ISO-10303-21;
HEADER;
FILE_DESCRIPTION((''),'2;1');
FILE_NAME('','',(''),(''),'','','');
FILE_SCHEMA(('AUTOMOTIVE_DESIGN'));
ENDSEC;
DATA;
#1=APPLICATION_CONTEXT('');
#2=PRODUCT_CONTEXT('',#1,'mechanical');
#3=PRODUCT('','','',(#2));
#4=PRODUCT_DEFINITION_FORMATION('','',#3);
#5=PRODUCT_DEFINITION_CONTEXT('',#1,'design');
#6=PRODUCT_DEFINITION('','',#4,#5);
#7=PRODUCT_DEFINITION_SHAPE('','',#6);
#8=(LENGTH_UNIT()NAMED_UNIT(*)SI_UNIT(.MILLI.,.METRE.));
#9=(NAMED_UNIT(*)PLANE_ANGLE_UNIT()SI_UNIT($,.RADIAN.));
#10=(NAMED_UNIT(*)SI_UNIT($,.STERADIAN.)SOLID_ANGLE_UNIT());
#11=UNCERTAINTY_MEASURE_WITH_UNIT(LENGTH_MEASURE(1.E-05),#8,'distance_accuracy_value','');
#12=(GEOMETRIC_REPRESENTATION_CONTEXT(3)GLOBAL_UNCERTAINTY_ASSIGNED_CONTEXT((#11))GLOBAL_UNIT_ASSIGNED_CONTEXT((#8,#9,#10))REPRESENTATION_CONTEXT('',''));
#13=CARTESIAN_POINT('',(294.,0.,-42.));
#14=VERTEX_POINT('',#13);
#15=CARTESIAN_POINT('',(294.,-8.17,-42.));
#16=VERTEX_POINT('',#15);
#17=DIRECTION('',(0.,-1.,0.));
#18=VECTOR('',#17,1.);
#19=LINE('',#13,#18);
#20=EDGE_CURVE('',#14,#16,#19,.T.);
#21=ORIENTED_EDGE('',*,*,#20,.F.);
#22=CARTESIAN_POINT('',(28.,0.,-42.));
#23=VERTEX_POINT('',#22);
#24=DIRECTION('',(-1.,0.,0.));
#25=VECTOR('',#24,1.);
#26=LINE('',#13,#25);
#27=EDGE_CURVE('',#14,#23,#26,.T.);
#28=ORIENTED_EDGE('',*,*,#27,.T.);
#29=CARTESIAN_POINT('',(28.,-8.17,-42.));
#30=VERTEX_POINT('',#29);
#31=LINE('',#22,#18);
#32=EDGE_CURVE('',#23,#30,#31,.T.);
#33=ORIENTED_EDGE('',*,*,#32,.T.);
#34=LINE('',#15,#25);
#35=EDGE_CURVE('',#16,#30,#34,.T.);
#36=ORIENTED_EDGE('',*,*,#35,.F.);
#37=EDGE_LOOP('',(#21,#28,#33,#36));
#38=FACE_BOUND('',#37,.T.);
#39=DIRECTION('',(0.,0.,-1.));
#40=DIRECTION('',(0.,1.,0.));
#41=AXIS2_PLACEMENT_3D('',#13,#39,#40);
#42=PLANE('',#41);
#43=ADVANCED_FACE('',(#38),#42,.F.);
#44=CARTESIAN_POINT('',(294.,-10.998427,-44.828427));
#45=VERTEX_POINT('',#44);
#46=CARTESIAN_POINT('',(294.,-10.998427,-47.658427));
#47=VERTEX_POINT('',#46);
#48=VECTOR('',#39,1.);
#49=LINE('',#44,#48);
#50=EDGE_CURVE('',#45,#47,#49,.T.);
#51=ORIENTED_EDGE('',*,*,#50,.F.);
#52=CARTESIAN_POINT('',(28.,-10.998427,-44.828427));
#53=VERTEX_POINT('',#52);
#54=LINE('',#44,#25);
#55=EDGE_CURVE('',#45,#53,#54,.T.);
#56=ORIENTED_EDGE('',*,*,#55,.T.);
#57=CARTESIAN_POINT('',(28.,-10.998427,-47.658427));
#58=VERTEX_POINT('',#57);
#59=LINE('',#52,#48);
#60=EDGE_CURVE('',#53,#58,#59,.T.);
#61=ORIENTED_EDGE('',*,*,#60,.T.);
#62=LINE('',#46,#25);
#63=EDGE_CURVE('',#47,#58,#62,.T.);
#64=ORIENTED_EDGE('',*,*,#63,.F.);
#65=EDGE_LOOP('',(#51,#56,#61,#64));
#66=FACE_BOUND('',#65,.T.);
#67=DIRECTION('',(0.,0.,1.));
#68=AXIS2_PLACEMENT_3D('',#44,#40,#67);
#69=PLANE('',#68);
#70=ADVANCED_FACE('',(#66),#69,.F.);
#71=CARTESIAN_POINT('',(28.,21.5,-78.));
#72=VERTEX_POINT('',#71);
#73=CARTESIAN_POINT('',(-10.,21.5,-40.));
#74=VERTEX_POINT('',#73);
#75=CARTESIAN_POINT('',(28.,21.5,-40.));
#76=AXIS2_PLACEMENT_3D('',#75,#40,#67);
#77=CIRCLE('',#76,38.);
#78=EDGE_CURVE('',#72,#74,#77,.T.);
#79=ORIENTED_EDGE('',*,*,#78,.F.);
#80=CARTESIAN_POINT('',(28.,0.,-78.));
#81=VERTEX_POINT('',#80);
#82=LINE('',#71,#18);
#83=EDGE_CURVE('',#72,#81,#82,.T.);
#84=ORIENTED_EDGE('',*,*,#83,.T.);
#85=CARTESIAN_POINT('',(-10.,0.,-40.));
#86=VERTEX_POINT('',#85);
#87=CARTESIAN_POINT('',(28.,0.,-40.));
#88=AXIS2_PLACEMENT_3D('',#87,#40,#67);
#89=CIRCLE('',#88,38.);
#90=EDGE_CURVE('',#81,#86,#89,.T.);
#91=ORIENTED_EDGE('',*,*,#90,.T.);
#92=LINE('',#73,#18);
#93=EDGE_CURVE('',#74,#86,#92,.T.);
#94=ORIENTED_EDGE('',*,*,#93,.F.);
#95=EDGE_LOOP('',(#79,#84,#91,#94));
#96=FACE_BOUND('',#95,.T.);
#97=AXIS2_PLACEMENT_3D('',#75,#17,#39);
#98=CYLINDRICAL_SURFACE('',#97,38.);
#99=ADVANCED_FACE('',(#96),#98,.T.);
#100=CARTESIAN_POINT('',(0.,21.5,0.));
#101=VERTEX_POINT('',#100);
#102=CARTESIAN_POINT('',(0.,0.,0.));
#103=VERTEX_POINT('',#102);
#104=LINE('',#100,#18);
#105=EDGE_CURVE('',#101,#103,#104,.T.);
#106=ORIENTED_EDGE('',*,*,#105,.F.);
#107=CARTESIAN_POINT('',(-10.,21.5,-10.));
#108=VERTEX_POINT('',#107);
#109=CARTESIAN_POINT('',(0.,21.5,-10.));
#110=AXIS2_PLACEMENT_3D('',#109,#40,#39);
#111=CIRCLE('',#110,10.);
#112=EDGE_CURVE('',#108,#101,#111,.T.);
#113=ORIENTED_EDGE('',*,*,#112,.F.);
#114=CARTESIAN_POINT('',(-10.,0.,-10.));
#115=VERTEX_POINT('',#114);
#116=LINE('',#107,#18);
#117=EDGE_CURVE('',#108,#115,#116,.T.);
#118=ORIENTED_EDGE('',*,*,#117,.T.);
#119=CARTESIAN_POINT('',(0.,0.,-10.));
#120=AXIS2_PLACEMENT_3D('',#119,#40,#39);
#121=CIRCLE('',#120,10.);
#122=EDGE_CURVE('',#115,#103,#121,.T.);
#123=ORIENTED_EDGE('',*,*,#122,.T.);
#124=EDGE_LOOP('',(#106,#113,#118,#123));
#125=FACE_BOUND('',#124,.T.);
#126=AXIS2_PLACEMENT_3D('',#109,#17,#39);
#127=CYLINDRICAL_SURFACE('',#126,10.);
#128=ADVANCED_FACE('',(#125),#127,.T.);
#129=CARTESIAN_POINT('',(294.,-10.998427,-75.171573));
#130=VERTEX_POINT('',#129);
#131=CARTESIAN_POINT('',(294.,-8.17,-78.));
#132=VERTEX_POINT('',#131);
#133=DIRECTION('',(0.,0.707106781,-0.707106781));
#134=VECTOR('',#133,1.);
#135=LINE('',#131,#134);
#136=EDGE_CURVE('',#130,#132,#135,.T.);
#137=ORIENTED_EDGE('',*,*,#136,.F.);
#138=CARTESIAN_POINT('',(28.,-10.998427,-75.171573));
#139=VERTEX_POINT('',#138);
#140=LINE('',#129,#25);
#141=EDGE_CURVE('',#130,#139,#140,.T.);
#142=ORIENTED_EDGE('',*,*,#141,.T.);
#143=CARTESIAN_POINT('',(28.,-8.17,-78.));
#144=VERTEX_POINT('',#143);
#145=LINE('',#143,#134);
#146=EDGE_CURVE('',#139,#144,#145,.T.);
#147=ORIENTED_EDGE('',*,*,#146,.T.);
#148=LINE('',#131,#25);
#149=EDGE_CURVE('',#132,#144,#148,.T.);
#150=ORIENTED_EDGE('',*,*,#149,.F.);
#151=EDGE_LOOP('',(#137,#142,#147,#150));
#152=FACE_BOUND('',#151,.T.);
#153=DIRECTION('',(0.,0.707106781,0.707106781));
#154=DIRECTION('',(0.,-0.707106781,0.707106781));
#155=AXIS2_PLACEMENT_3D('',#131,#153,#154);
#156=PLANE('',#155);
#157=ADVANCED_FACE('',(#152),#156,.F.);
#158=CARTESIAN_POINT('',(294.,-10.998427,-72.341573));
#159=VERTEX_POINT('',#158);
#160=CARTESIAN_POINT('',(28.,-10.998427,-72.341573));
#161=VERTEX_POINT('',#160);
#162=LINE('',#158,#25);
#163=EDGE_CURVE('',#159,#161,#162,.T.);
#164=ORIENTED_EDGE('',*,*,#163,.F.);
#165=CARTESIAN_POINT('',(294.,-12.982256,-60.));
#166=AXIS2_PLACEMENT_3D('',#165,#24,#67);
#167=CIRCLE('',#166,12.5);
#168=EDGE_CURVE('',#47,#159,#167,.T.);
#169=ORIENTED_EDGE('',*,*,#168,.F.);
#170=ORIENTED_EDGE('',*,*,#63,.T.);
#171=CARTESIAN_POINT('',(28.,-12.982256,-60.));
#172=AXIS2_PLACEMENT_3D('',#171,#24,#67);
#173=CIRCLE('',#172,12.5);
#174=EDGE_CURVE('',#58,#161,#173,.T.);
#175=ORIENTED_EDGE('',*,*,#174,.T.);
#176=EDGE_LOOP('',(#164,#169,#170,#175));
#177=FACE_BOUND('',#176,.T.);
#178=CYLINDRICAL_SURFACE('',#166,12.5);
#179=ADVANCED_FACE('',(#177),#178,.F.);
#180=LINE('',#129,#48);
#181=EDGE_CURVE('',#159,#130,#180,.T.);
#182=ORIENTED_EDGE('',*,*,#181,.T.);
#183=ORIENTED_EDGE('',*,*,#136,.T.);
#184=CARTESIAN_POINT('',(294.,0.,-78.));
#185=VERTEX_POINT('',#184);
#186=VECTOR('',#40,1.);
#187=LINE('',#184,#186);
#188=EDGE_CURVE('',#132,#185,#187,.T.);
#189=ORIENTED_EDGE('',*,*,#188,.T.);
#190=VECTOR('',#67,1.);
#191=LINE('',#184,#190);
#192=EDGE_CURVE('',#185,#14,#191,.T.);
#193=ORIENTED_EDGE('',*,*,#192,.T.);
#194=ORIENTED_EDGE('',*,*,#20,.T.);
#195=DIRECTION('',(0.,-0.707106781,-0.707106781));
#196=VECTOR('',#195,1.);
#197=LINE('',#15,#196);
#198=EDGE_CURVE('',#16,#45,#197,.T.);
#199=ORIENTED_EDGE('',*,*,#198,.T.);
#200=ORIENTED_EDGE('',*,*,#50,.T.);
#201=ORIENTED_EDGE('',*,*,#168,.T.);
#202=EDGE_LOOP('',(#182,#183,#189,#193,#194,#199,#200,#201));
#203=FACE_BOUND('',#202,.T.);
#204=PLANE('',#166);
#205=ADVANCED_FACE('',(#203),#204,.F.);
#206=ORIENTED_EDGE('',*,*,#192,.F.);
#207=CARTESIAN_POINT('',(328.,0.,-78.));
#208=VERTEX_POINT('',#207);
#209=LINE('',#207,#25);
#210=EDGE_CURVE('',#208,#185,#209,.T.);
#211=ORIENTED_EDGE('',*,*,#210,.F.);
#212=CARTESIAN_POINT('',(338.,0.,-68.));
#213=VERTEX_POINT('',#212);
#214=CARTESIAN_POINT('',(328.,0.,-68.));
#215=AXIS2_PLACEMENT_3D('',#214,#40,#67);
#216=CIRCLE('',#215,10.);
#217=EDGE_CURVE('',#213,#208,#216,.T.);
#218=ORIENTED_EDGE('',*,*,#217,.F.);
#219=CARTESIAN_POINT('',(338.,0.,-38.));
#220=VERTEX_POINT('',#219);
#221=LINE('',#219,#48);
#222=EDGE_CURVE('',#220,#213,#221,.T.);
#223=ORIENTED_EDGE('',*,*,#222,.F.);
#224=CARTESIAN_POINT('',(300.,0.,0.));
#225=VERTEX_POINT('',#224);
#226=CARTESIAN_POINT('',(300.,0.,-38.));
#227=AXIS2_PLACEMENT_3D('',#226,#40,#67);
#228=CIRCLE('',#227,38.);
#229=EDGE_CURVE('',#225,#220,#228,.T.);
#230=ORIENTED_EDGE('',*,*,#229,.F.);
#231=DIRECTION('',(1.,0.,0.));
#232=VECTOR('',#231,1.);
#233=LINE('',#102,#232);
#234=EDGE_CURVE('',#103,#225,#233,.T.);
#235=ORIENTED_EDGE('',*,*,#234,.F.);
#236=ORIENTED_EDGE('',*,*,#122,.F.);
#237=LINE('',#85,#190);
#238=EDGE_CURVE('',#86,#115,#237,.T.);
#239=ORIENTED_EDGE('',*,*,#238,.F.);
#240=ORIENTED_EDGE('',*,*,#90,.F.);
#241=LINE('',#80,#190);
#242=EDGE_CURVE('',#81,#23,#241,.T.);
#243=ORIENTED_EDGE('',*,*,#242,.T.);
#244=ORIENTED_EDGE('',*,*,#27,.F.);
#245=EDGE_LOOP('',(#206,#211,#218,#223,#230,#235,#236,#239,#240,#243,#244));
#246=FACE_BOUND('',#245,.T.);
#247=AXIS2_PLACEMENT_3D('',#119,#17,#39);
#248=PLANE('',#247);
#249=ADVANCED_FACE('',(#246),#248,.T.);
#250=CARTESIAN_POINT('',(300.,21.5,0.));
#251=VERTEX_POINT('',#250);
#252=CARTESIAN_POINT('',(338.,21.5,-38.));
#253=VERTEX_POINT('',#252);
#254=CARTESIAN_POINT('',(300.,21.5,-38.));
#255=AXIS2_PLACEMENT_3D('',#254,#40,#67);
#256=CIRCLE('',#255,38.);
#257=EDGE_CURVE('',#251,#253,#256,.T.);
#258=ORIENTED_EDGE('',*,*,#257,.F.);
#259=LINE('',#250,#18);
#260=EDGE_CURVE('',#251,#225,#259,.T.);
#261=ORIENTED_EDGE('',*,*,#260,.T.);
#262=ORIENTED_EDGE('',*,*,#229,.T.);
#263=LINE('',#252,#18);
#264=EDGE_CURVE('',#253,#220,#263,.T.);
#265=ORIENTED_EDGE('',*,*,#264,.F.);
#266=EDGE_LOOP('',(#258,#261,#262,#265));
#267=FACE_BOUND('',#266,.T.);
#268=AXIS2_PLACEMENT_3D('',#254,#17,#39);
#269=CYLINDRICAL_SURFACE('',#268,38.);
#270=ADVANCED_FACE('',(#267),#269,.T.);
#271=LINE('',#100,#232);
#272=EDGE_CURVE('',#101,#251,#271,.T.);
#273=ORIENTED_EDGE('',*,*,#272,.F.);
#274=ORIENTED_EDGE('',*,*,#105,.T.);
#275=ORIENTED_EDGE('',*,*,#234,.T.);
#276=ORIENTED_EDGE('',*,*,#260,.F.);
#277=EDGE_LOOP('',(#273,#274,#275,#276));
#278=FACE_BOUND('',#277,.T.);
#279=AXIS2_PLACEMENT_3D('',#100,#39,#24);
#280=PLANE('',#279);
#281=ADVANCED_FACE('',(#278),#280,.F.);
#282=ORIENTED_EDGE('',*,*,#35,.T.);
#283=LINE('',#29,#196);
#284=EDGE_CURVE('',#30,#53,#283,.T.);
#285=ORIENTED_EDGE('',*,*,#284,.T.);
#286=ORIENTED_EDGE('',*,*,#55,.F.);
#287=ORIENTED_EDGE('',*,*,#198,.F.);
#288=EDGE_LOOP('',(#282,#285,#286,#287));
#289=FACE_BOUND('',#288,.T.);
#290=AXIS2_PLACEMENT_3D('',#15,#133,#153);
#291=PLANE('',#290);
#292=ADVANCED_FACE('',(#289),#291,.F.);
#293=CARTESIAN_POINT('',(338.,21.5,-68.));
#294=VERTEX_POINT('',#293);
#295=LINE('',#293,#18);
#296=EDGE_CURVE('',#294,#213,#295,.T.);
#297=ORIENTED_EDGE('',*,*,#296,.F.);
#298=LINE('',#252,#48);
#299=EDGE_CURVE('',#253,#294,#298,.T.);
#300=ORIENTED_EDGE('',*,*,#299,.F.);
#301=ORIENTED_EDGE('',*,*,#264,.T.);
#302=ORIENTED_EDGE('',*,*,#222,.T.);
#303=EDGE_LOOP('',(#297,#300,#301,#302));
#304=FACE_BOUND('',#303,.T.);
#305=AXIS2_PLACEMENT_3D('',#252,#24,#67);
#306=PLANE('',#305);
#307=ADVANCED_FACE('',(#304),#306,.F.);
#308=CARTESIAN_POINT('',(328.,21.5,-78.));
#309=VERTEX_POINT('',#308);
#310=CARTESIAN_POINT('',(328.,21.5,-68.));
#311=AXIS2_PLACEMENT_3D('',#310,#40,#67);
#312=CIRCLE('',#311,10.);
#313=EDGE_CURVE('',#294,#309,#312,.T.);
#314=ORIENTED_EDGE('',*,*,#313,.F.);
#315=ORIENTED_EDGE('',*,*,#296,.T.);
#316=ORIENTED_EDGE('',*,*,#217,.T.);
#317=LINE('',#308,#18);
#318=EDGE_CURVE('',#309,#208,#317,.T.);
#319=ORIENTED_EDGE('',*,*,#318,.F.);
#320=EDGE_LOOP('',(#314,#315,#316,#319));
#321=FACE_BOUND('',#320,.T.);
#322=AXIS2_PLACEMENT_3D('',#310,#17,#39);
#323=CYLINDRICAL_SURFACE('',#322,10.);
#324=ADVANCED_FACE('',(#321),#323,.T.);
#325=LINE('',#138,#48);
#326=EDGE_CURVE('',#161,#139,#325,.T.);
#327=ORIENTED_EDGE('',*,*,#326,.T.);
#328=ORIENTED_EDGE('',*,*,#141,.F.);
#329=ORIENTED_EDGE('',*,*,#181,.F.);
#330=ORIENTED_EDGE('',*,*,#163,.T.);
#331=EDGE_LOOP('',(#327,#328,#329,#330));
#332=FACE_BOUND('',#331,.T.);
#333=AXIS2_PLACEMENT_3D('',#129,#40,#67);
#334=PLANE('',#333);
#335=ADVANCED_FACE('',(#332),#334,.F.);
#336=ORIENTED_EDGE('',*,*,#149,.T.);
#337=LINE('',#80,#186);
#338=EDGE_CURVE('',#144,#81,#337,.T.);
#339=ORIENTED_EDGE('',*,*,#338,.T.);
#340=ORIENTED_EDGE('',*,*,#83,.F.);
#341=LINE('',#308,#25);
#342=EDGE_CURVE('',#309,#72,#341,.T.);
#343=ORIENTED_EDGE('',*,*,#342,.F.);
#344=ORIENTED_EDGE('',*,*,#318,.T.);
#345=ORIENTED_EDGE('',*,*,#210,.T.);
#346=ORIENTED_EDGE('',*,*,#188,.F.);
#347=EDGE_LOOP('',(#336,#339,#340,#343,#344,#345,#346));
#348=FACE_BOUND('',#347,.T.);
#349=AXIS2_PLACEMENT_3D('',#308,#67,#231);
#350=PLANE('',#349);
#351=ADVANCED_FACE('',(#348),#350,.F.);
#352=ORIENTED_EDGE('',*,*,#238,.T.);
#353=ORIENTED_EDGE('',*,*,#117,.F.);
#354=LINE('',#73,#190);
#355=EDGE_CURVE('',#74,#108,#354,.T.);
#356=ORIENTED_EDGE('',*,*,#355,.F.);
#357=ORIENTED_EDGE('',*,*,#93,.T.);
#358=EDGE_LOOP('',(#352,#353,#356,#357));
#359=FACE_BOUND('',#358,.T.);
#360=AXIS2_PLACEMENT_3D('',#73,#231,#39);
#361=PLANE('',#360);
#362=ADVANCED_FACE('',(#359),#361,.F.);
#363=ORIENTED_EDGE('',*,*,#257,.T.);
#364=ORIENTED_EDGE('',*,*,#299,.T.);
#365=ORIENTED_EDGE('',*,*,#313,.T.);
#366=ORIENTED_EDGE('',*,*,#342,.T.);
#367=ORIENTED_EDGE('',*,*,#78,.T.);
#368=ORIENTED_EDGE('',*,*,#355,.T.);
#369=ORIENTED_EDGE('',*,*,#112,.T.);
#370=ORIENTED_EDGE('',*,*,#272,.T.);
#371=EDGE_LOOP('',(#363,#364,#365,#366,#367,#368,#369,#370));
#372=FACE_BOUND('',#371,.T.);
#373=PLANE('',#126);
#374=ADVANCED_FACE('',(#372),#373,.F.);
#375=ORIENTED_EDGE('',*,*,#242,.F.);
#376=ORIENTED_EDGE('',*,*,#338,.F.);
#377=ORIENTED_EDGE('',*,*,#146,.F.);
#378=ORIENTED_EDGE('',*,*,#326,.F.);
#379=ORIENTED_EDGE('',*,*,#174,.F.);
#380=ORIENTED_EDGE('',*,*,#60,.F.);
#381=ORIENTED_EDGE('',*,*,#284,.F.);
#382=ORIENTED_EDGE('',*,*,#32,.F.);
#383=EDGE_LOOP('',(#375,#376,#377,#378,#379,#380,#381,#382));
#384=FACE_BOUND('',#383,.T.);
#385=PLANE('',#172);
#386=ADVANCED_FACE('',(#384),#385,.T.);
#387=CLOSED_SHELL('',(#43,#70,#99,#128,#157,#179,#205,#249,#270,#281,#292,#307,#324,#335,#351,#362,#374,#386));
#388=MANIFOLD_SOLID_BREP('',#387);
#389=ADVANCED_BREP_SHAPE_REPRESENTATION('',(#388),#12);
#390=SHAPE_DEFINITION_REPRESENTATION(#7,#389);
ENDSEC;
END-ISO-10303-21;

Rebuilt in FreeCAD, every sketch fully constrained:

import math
import FreeCAD as App
import Part
import Sketcher

doc = App.newDocument("Part")
params = doc.addObject("Spreadsheet::Sheet", "Params")
for row, (alias, value) in enumerate([
    ("sketch1_radius", "38 mm"),
    ("sketch1_radius2", "10 mm"),
    ("sketch1_width", "300 mm"),
    ("sketch1_height", "30 mm"),
    ("pad1_length", "21.5 mm"),
    ("sketch2_radius", "12.5 mm"),
    ("sketch2_height", "36 mm"),
    ("sketch2_length", "4 mm"),
    ("sketch2_width", "8.17 mm"),
    ("sketch2_height2", "2.83 mm"),
    ("pad2_length", "266 mm"),
], start=1):
    params.set(f"A{row}", alias)
    params.set(f"B{row}", "=" + value)
    params.setAlias(f"B{row}", alias)

body = doc.addObject("PartDesign::Body", "Body")

sketch1 = doc.addObject("Sketcher::SketchObject", "Sketch")
body.addObject(sketch1)
sketch1.AttachmentSupport = (doc.XZ_Plane, [""])
sketch1.MapMode = "FlatFace"
sketch1.addGeometry([
    Part.LineSegment(App.Vector(0, 0, 0), App.Vector(300, 0, 0)),
    Part.ArcOfCircle(Part.Circle(App.Vector(300, -38, 0), App.Vector(0, 0, 1), 38), math.radians(0), math.radians(90)),
    Part.LineSegment(App.Vector(338, -38, 0), App.Vector(338, -68, 0)),
    Part.ArcOfCircle(Part.Circle(App.Vector(328, -68, 0), App.Vector(0, 0, 1), 10), math.radians(-90), math.radians(0)),
    Part.LineSegment(App.Vector(328, -78, 0), App.Vector(28, -78, 0)),
    Part.ArcOfCircle(Part.Circle(App.Vector(28, -40, 0), App.Vector(0, 0, 1), 38), math.radians(180), math.radians(270)),
    Part.LineSegment(App.Vector(-10, -40, 0), App.Vector(-10, -10, 0)),
    Part.ArcOfCircle(Part.Circle(App.Vector(0, -10, 0), App.Vector(0, 0, 1), 10), math.radians(90), math.radians(180)),
], False)
sketch1.addConstraint([
    Sketcher.Constraint("Tangent", 0, 2, 1, 2),
    Sketcher.Constraint("Tangent", 1, 1, 2, 1),
    Sketcher.Constraint("Tangent", 2, 2, 3, 2),
    Sketcher.Constraint("Tangent", 3, 1, 4, 1),
    Sketcher.Constraint("Tangent", 4, 2, 5, 2),
    Sketcher.Constraint("Tangent", 5, 1, 6, 1),
    Sketcher.Constraint("Tangent", 6, 2, 7, 2),
    Sketcher.Constraint("Tangent", 7, 1, 0, 1),
    Sketcher.Constraint("Horizontal", 0),
    Sketcher.Constraint("Vertical", 2),
    Sketcher.Constraint("Horizontal", 4),
    Sketcher.Constraint("Vertical", 6),
    Sketcher.Constraint("Coincident", 7, 1, -1, 1),
    Sketcher.Constraint("Equal", 1, 5),
    Sketcher.Constraint("Equal", 3, 7),
    Sketcher.Constraint("Radius", 1, 38.0),
    Sketcher.Constraint("Radius", 3, 10.0),
    Sketcher.Constraint("DistanceX", 0, 1, 0, 2, 300.0),
    Sketcher.Constraint("DistanceY", 2, 2, 2, 1, 30.0),
])
sketch1.setExpression("Constraints[15]", "Params.sketch1_radius")
sketch1.setExpression("Constraints[16]", "Params.sketch1_radius2")
sketch1.setExpression("Constraints[17]", "Params.sketch1_width")
sketch1.setExpression("Constraints[18]", "Params.sketch1_height")
pad1 = doc.addObject("PartDesign::Pad", "Pad")
body.addObject(pad1)
pad1.Profile = sketch1
pad1.setExpression("Length", "Params.pad1_length")
pad1.Reversed = True

sketch2 = doc.addObject("Sketcher::SketchObject", "Sketch001")
body.addObject(sketch2)
sketch2.AttachmentSupport = (doc.YZ_Plane, [""])
sketch2.MapMode = "FlatFace"
sketch2.AttachmentOffset = App.Placement(App.Vector(0, 0, 28), App.Rotation())
sketch2.addGeometry([
    Part.LineSegment(App.Vector(0, -78, 0), App.Vector(0, -42, 0)),
    Part.LineSegment(App.Vector(0, -42, 0), App.Vector(-8.2, -42, 0)),
    Part.LineSegment(App.Vector(-8.2, -42, 0), App.Vector(-11, -44.8, 0)),
    Part.LineSegment(App.Vector(-11, -44.8, 0), App.Vector(-11, -47.7, 0)),
    Part.ArcOfCircle(Part.Circle(App.Vector(-13, -60, 0), App.Vector(0, 0, 1), 12.5), math.radians(-81), math.radians(81)),
    Part.LineSegment(App.Vector(-11, -72.3, 0), App.Vector(-11, -75.2, 0)),
    Part.LineSegment(App.Vector(-11, -75.2, 0), App.Vector(-8.2, -78, 0)),
    Part.LineSegment(App.Vector(-8.2, -78, 0), App.Vector(0, -78, 0)),
], False)
sketch2.addConstraint([
    Sketcher.Constraint("Coincident", 0, 2, 1, 1),
    Sketcher.Constraint("Coincident", 1, 2, 2, 1),
    Sketcher.Constraint("Coincident", 2, 2, 3, 1),
    Sketcher.Constraint("Coincident", 3, 2, 4, 2),
    Sketcher.Constraint("Coincident", 4, 1, 5, 1),
    Sketcher.Constraint("Coincident", 5, 2, 6, 1),
    Sketcher.Constraint("Coincident", 6, 2, 7, 1),
    Sketcher.Constraint("Coincident", 7, 2, 0, 1),
    Sketcher.Constraint("Vertical", 0),
    Sketcher.Constraint("Horizontal", 1),
    Sketcher.Constraint("Vertical", 3),
    Sketcher.Constraint("Vertical", 5),
    Sketcher.Constraint("Horizontal", 7),
    Sketcher.Constraint("PointOnObject", 0, 2, -2),
    Sketcher.Constraint("Perpendicular", 2, 6),
    Sketcher.Constraint("Vertical", 3, 2, 4, 1),
    Sketcher.Constraint("Vertical", 1, 2, 6, 2),
    Sketcher.Constraint("Equal", 3, 5),
    Sketcher.Constraint("Equal", 2, 6),
    Sketcher.Constraint("Radius", 4, 12.5),
    Sketcher.Constraint("DistanceY", 0, 1, 0, 2, 36.0),
    Sketcher.Constraint("Distance", 2, 4.0),
    Sketcher.Constraint("DistanceY", 4, 3, -1, 1, 60.0),
    Sketcher.Constraint("DistanceX", 1, 2, 1, 1, 8.17),
    Sketcher.Constraint("DistanceY", 3, 2, 3, 1, 2.83),
])
sketch2.setExpression("Constraints[19]", "Params.sketch2_radius")
sketch2.setExpression("Constraints[20]", "Params.sketch2_height")
sketch2.setExpression("Constraints[21]", "Params.sketch2_length")
sketch2.setExpression("Constraints[23]", "Params.sketch2_width")
sketch2.setExpression("Constraints[24]", "Params.sketch2_height2")
pad2 = doc.addObject("PartDesign::Pad", "Pad001")
body.addObject(pad2)
pad2.Profile = sketch2
pad2.setExpression("Length", "Params.pad2_length")

doc.recompute()
